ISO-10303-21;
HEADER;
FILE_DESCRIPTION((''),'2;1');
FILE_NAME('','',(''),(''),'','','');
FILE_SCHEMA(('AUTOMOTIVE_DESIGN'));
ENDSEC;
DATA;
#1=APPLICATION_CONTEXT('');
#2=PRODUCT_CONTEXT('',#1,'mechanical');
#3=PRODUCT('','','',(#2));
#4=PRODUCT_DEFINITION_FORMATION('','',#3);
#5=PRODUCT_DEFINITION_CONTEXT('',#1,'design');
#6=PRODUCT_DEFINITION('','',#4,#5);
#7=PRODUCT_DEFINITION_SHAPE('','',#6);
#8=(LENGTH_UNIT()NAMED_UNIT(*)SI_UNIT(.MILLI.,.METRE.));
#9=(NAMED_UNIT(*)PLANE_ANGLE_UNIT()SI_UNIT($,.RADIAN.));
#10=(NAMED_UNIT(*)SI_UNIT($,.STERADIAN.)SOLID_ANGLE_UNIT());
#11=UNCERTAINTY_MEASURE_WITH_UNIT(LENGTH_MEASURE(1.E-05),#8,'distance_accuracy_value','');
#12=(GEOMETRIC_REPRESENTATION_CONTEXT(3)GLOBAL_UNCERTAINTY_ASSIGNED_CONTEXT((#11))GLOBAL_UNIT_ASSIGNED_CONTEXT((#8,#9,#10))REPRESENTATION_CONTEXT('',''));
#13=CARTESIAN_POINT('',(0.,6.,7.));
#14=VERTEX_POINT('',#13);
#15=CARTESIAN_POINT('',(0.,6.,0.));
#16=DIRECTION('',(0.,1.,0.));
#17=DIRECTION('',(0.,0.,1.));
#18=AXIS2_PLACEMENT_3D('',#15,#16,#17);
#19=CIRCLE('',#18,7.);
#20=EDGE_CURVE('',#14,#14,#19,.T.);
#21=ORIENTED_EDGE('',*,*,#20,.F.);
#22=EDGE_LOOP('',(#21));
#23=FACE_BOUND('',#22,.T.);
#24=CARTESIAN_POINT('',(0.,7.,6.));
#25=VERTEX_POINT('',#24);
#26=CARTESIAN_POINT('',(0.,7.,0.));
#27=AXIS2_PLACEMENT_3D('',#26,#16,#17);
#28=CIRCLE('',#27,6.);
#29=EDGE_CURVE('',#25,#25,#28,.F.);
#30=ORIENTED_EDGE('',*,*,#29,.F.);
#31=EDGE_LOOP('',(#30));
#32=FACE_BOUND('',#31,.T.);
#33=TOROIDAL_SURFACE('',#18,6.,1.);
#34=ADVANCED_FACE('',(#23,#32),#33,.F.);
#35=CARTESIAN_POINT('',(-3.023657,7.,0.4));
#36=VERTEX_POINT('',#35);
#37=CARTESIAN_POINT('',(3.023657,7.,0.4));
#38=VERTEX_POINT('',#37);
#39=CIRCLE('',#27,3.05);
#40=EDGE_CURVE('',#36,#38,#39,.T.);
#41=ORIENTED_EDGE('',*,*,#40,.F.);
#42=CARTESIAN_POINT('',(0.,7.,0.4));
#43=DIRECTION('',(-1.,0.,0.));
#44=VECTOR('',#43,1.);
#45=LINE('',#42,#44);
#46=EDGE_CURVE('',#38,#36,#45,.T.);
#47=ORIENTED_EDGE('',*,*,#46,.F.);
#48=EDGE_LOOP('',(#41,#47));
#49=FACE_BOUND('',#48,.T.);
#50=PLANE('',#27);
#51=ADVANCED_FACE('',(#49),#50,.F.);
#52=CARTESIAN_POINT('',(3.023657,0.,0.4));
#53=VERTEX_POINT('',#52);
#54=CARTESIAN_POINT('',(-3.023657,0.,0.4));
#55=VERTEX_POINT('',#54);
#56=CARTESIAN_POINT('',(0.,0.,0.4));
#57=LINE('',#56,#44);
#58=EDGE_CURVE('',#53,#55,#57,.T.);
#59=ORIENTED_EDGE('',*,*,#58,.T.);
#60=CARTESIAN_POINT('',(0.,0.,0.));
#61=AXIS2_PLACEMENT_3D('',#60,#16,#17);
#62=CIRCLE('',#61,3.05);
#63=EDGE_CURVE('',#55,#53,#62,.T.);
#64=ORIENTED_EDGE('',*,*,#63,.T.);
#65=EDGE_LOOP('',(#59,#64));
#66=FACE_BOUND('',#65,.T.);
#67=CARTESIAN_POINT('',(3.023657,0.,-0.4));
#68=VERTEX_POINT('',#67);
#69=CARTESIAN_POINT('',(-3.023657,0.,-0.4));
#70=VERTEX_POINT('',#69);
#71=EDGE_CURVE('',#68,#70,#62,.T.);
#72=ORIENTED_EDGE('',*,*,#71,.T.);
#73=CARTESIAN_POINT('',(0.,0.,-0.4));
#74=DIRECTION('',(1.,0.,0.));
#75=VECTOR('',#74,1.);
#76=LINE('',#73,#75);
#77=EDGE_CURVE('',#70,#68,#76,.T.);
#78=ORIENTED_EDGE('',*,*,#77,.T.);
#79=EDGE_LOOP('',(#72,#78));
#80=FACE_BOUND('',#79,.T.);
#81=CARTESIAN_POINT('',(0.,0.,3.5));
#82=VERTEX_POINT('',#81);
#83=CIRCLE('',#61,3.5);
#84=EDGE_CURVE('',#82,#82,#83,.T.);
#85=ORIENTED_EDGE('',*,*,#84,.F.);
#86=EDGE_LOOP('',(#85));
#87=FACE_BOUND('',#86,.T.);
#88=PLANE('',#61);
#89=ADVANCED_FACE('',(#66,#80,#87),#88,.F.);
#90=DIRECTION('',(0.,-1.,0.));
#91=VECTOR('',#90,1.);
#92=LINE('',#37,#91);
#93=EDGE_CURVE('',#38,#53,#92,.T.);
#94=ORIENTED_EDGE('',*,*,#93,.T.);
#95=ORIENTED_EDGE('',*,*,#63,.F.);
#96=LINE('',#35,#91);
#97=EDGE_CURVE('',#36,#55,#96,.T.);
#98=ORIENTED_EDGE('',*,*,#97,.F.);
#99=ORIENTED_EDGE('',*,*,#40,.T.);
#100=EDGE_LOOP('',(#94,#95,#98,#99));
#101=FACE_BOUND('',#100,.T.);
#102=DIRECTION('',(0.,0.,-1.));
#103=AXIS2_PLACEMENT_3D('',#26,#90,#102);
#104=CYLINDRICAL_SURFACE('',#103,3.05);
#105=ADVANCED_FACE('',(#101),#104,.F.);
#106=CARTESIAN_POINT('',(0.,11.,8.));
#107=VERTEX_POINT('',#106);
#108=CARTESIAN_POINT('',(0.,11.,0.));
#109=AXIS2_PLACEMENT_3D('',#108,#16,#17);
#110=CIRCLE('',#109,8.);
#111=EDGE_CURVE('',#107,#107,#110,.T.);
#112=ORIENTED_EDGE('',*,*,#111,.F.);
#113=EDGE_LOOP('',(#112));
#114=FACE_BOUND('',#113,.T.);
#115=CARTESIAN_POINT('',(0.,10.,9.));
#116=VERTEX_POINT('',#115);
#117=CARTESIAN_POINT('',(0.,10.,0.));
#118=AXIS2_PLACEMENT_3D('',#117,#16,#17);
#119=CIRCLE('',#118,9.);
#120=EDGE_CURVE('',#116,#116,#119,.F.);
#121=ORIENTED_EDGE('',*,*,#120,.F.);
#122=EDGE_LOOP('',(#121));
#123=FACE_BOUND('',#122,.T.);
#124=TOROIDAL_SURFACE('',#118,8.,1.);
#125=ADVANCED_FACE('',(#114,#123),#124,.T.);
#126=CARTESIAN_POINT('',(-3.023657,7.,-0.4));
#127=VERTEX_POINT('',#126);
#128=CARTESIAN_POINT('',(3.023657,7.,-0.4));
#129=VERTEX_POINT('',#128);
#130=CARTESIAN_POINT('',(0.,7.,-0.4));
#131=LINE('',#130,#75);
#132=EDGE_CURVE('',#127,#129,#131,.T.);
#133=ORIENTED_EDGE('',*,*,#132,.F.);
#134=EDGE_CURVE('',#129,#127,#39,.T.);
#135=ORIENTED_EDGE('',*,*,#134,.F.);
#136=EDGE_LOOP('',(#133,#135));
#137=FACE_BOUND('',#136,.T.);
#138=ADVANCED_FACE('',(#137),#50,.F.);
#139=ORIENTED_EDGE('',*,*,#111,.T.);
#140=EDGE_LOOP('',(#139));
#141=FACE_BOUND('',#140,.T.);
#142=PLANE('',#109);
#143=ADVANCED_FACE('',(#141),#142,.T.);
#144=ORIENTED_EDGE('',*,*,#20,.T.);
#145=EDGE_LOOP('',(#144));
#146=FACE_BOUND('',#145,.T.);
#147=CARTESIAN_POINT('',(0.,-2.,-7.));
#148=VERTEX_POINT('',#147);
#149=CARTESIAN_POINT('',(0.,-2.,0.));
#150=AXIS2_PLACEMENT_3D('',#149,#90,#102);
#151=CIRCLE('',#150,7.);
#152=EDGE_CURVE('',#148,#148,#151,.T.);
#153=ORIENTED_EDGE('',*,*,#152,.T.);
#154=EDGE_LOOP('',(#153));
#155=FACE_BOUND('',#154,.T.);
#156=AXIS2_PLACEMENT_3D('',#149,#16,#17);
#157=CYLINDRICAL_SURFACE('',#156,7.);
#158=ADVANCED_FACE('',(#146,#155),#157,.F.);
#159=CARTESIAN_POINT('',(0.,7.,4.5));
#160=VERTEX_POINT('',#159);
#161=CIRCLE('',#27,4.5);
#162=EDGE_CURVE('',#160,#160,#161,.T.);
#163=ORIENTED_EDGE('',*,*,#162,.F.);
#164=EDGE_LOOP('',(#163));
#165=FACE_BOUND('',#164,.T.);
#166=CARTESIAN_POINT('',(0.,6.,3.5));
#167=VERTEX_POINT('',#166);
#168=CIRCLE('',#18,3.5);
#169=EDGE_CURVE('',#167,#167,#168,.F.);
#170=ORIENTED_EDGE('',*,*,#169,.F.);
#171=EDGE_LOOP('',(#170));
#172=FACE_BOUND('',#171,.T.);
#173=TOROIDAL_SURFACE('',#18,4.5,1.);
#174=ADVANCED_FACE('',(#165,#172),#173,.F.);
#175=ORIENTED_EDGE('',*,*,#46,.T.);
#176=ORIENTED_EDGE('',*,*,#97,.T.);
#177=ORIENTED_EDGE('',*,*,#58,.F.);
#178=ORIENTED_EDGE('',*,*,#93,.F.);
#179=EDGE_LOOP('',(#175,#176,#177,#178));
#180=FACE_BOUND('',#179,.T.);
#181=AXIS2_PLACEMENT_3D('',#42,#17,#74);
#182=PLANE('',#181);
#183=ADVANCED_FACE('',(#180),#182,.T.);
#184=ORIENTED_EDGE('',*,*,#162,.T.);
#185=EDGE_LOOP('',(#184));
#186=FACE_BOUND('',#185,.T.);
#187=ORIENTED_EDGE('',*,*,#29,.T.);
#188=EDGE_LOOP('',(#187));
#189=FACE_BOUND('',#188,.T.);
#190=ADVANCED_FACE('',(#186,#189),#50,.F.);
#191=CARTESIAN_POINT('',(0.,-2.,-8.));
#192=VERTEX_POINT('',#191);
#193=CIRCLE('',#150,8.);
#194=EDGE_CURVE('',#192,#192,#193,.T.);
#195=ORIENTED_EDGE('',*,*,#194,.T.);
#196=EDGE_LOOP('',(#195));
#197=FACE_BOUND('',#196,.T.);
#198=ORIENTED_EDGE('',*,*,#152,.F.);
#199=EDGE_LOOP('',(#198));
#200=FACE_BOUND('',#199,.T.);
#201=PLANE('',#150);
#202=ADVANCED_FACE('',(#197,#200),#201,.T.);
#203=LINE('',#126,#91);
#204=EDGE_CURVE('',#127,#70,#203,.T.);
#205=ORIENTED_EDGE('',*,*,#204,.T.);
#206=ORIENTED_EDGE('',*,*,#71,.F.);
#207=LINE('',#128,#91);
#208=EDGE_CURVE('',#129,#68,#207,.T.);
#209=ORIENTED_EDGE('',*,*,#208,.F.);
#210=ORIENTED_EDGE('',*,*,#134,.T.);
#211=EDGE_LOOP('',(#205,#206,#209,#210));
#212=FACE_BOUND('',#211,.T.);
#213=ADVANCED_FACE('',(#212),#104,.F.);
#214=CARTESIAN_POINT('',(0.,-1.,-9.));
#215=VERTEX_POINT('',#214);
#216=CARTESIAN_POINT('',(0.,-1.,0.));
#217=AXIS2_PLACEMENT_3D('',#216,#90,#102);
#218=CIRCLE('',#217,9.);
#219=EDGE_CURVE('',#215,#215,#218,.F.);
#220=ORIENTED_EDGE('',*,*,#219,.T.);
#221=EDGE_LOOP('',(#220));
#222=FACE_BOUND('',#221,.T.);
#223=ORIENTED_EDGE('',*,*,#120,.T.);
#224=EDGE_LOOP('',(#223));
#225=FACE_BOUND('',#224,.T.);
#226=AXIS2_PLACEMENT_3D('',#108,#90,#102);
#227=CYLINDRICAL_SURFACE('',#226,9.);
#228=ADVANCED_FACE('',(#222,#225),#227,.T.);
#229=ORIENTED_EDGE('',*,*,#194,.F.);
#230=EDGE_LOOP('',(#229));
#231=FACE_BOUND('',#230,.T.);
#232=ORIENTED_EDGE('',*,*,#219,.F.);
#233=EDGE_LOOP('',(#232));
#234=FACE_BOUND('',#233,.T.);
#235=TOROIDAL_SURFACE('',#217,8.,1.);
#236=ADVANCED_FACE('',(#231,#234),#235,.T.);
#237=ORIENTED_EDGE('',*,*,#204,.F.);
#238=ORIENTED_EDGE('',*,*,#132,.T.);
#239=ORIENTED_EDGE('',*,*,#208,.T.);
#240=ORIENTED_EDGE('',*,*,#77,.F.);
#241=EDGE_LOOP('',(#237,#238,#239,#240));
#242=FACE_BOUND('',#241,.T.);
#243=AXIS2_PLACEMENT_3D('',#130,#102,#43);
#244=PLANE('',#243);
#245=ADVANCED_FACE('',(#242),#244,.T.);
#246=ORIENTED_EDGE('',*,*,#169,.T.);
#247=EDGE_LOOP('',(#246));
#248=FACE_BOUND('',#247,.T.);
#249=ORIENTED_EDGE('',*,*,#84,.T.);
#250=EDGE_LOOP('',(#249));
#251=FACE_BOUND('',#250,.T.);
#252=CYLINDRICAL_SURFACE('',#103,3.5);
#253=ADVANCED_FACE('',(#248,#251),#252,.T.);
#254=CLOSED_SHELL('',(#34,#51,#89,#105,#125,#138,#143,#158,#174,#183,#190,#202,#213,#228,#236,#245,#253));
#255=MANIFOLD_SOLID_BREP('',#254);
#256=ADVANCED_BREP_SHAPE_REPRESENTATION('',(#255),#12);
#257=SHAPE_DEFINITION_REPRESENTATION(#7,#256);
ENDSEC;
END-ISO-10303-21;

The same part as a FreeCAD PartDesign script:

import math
import FreeCAD as App
import Part
import Sketcher

V = App.Vector
Q = App.Units.Quantity


def edges_at(feature, points):
    """Names of the edges that pass closest to the given points."""
    edges = feature.Shape.Edges
    near = lambda p: min(range(len(edges)), key=lambda i: edges[i].distToShape(Part.Vertex(*p))[0])
    return sorted({f"Edge{near(p) + 1}" for p in points})

doc = App.newDocument("Part")
body = doc.addObject("PartDesign::Body", "Body")

# Sketch on XZ plane
sketch1 = body.newObject("Sketcher::SketchObject", "Sketch")
sketch1.AttachmentSupport = (doc.getObject("XZ_Plane"), [""])
sketch1.MapMode = "FlatFace"
sketch1.addGeometry(Part.Circle(V(0, 0, 0), V(0, 0, 1), 3.5), False)
sketch1.addGeometry(Part.ArcOfCircle(Part.Circle(V(0, 0, 0), V(0, 0, 1), 3.1), math.radians(-172), math.radians(-8)), False)
sketch1.addGeometry(Part.LineSegment(V(3, -0.4, 0), V(-3, -0.4, 0)), False)
sketch1.addGeometry(Part.ArcOfCircle(Part.Circle(V(0, 0, 0), V(0, 0, 1), 3.1), math.radians(8), math.radians(172)), False)
sketch1.addGeometry(Part.LineSegment(V(-3, 0.4, 0), V(3, 0.4, 0)), False)
sketch1.addConstraint(Sketcher.Constraint("Coincident", 1, 1, 2, 2))
sketch1.addConstraint(Sketcher.Constraint("Coincident", 2, 1, 1, 2))
sketch1.addConstraint(Sketcher.Constraint("Coincident", 3, 1, 4, 2))
sketch1.addConstraint(Sketcher.Constraint("Coincident", 4, 1, 3, 2))
sketch1.addConstraint(Sketcher.Constraint("Horizontal", 2))
sketch1.addConstraint(Sketcher.Constraint("Horizontal", 4))
sketch1.addConstraint(Sketcher.Constraint("Coincident", 0, 3, -1, 1))
sketch1.addConstraint(Sketcher.Constraint("Coincident", 1, 3, -1, 1))
sketch1.addConstraint(Sketcher.Constraint("Coincident", 3, 3, -1, 1))
sketch1.addConstraint(Sketcher.Constraint("Equal", 1, 3))
sketch1.addConstraint(Sketcher.Constraint("Vertical", 2, 1, 3, 1))
sketch1.addConstraint(Sketcher.Constraint("Diameter", 0, Q("7 mm")))
sketch1.addConstraint(Sketcher.Constraint("Radius", 1, Q("3.05 mm")))
sketch1.addConstraint(Sketcher.Constraint("DistanceY", 1, 1, -1, 1, Q("0.4 mm")))
pad1 = body.newObject("PartDesign::Pad", "Pad")
pad1.Profile = sketch1
pad1.Length = 7
pad1.Reversed = True

# Sketch on XZ plane
sketch2 = body.newObject("Sketcher::SketchObject", "Sketch001")
sketch2.AttachmentSupport = (doc.getObject("XZ_Plane"), [""])
sketch2.MapMode = "FlatFace"
sketch2.AttachmentOffset = App.Placement(V(0, 0, -7), App.Rotation())
sketch2.addGeometry(Part.Circle(V(0, 0, 0), V(0, 0, 1), 9), False)
sketch2.addConstraint(Sketcher.Constraint("Coincident", 0, 3, -1, 1))
sketch2.addConstraint(Sketcher.Constraint("Diameter", 0, Q("18 mm")))
pad2 = body.newObject("PartDesign::Pad", "Pad001")
pad2.Profile = sketch2
pad2.Length = 4
pad2.Reversed = True

# Sketch on XZ plane
sketch3 = body.newObject("Sketcher::SketchObject", "Sketch002")
sketch3.AttachmentSupport = (doc.getObject("XZ_Plane"), [""])
sketch3.MapMode = "FlatFace"
sketch3.AttachmentOffset = App.Placement(V(0, 0, 2), App.Rotation())
sketch3.addGeometry(Part.Circle(V(0, 0, 0), V(0, 0, 1), 9), False)
sketch3.addGeometry(Part.Circle(V(0, 0, 0), V(0, 0, 1), 7), False)
sketch3.addConstraint(Sketcher.Constraint("Coincident", 0, 3, -1, 1))
sketch3.addConstraint(Sketcher.Constraint("Coincident", 1, 3, -1, 1))
sketch3.addConstraint(Sketcher.Constraint("Diameter", 0, Q("18 mm")))
sketch3.addConstraint(Sketcher.Constraint("Diameter", 1, Q("14 mm")))
pad3 = body.newObject("PartDesign::Pad", "Pad002")
pad3.Profile = sketch3
pad3.Length = 9
pad3.Reversed = True
doc.recompute()

fillet = body.newObject("PartDesign::Fillet", "Fillet")
fillet.Base = (pad3, edges_at(pad3, [
    (0, 11, -9),
    (0, 7, -3.5),
    (0, -2, 9),
    (0, 7, 7),
]))
fillet.Radius = 1

doc.recompute()
